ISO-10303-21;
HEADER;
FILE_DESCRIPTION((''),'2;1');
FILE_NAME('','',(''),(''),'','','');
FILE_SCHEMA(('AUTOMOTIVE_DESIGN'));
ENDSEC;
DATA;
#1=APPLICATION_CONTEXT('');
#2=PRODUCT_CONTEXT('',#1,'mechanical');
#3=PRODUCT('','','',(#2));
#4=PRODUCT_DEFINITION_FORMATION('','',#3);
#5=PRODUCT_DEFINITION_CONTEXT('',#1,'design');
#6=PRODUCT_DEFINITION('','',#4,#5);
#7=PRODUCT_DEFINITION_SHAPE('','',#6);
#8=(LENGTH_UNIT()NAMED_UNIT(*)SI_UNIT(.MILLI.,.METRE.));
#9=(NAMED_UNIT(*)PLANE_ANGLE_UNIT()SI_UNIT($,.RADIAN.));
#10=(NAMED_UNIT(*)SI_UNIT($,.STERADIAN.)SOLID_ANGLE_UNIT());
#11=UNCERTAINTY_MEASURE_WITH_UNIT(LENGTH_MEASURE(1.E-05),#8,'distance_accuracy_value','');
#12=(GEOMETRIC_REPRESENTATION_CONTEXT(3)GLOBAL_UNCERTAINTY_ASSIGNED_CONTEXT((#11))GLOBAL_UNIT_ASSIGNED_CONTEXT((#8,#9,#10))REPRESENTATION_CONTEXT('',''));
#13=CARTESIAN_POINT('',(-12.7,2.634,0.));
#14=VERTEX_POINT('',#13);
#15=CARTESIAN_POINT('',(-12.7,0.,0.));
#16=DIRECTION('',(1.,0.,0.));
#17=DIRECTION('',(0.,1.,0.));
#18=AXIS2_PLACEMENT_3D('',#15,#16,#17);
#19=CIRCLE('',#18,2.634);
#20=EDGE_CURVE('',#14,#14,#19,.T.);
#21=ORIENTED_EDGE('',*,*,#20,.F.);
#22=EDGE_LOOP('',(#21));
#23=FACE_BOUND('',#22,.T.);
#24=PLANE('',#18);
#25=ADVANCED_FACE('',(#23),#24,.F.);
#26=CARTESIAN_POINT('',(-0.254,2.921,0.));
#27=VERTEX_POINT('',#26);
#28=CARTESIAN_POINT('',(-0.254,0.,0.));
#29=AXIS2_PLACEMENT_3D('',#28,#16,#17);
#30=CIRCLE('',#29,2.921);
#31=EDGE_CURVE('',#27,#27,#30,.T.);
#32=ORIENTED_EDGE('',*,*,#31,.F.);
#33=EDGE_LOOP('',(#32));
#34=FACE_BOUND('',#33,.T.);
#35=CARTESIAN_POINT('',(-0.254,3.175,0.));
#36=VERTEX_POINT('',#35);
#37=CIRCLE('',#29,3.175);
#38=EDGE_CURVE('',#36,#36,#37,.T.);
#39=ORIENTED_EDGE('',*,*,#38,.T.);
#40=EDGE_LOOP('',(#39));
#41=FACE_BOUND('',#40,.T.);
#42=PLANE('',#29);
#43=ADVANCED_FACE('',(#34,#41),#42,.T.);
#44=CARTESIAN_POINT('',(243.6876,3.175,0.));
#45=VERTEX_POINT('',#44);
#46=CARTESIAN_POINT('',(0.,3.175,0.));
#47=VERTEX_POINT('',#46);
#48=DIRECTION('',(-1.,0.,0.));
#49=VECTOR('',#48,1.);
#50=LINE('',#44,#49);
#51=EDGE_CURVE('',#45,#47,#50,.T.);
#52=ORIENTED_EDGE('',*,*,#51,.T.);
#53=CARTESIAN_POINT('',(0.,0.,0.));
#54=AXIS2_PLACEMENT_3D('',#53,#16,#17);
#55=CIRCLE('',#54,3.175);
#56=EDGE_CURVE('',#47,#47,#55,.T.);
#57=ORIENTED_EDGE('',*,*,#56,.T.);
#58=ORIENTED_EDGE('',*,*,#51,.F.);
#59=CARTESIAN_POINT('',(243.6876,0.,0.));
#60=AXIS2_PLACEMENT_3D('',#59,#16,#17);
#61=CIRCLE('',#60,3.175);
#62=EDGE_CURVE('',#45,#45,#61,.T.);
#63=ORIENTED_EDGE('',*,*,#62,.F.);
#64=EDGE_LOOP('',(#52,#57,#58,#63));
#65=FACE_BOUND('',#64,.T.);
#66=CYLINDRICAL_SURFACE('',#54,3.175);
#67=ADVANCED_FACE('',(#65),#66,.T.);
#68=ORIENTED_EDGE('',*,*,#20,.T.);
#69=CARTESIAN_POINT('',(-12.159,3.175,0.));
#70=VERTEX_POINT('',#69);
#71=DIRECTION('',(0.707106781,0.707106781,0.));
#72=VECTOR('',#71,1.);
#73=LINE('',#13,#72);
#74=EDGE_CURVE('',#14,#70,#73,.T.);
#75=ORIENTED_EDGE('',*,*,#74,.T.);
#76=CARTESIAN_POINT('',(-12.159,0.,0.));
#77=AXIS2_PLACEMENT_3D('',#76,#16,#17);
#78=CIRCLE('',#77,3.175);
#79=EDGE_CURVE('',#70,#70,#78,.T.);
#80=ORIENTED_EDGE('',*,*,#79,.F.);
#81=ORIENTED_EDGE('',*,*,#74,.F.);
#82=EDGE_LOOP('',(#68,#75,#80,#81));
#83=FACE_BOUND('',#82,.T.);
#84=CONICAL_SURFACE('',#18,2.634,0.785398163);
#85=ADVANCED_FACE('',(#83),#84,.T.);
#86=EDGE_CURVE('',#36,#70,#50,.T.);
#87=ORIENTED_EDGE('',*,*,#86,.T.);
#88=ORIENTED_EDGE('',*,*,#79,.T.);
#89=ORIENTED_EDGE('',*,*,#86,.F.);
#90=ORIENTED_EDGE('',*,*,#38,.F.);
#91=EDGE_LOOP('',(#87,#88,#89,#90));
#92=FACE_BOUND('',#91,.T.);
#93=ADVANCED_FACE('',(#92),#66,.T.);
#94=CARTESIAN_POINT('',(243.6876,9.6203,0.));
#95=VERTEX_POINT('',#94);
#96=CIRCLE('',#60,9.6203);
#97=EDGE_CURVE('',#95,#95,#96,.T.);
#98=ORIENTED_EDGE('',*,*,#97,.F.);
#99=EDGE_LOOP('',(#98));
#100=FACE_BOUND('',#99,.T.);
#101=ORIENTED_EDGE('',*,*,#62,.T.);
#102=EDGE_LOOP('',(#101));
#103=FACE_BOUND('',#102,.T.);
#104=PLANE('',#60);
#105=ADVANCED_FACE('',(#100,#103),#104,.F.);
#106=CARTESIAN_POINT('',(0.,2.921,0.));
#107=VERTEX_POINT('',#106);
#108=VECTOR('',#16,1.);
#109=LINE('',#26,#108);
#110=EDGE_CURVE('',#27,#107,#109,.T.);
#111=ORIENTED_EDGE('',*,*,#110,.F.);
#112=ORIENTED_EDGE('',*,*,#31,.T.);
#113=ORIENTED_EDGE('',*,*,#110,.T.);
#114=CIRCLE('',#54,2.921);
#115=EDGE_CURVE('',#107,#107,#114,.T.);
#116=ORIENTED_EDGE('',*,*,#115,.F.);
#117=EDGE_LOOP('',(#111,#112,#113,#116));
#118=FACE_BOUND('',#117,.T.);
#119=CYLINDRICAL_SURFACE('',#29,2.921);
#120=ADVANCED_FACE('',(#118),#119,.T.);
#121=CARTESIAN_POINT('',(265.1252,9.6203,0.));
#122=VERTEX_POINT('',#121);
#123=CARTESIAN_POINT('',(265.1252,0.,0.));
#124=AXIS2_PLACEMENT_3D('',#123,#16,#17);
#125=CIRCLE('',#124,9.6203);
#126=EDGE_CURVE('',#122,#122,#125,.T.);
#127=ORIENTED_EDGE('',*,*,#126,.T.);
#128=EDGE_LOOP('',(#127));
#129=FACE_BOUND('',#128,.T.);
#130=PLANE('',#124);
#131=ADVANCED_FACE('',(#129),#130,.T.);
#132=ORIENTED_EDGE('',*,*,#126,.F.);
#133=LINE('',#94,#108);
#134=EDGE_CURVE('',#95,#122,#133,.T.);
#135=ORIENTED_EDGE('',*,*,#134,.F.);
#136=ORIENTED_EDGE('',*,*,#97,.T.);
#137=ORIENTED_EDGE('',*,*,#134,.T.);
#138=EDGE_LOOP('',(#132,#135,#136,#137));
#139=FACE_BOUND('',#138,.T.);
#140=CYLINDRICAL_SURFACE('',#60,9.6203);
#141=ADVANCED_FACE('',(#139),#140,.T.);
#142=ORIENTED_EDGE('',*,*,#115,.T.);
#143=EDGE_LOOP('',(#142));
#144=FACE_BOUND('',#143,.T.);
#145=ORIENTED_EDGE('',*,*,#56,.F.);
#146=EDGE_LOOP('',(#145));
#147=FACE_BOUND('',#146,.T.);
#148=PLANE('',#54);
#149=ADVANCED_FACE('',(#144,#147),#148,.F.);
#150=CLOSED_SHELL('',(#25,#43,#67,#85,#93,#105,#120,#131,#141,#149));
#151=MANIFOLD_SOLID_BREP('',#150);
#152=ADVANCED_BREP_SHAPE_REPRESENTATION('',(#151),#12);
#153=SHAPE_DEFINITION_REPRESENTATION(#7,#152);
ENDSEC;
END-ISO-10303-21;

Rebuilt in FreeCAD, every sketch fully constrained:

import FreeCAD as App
import Part
import Sketcher
from FreeCAD import Vector
Q = App.Units.Quantity

doc = App.newDocument("Part")
body = doc.addObject("PartDesign::Body", "Body")

sketch1 = doc.addObject("Sketcher::SketchObject", "Sketch")
body.addObject(sketch1)
sketch1.AttachmentSupport = (doc.XY_Plane, [""])
sketch1.MapMode = "FlatFace"
sketch1.addGeometry(Part.LineSegment(Vector(0, 0, 0), Vector(265.1, 0, 0)), False)
sketch1.addGeometry(Part.LineSegment(Vector(265.1, 0, 0), Vector(265.1, 9.6, 0)), False)
sketch1.addGeometry(Part.LineSegment(Vector(265.1, 9.6, 0), Vector(243.7, 9.6, 0)), False)
sketch1.addGeometry(Part.LineSegment(Vector(243.7, 9.6, 0), Vector(243.7, 3.2, 0)), False)
sketch1.addGeometry(Part.LineSegment(Vector(243.7, 3.2, 0), Vector(0, 3.2, 0)), False)
sketch1.addGeometry(Part.LineSegment(Vector(0, 3.2, 0), Vector(0, 0, 0)), False)
sketch1.addConstraint(Sketcher.Constraint("Coincident", 0, 2, 1, 1))
sketch1.addConstraint(Sketcher.Constraint("Coincident", 1, 2, 2, 1))
sketch1.addConstraint(Sketcher.Constraint("Coincident", 2, 2, 3, 1))
sketch1.addConstraint(Sketcher.Constraint("Coincident", 3, 2, 4, 1))
sketch1.addConstraint(Sketcher.Constraint("Coincident", 4, 2, 5, 1))
sketch1.addConstraint(Sketcher.Constraint("Coincident", 5, 2, 0, 1))
sketch1.addConstraint(Sketcher.Constraint("Horizontal", 0))
sketch1.addConstraint(Sketcher.Constraint("Vertical", 1))
sketch1.addConstraint(Sketcher.Constraint("Horizontal", 2))
sketch1.addConstraint(Sketcher.Constraint("Vertical", 3))
sketch1.addConstraint(Sketcher.Constraint("Horizontal", 4))
sketch1.addConstraint(Sketcher.Constraint("Vertical", 5))
sketch1.addConstraint(Sketcher.Constraint("Coincident", 5, 2, -1, 1))
sketch1.addConstraint(Sketcher.Constraint("DistanceX", 0, 1, 0, 2, Q("10.438 in")))
sketch1.addConstraint(Sketcher.Constraint("DistanceX", 2, 2, 2, 1, Q("0.844 in")))
sketch1.addConstraint(Sketcher.Constraint("DistanceY", 5, 2, 5, 1, Q("0.125 in")))
sketch1.addConstraint(Sketcher.Constraint("DistanceY", 1, 1, 1, 2, Q("9.6203 mm")))
revolution = doc.addObject("PartDesign::Revolution", "Revolution")
body.addObject(revolution)
revolution.Profile = sketch1
revolution.ReferenceAxis = (sketch1, ["H_Axis"])
revolution.Angle = 360

sketch2 = doc.addObject("Sketcher::SketchObject", "Sketch001")
body.addObject(sketch2)
sketch2.AttachmentSupport = (doc.XY_Plane, [""])
sketch2.MapMode = "FlatFace"
sketch2.addGeometry(Part.LineSegment(Vector(-12.7, 0, 0), Vector(0, 0, 0)), False)
sketch2.addGeometry(Part.LineSegment(Vector(0, 0, 0), Vector(0, 3.2, 0)), False)
sketch2.addGeometry(Part.LineSegment(Vector(0, 3.2, 0), Vector(-12.2, 3.2, 0)), False)
sketch2.addGeometry(Part.LineSegment(Vector(-12.2, 3.2, 0), Vector(-12.7, 2.6, 0)), False)
sketch2.addGeometry(Part.LineSegment(Vector(-12.7, 2.6, 0), Vector(-12.7, 0, 0)), False)
sketch2.addConstraint(Sketcher.Constraint("Coincident", 0, 2, 1, 1))
sketch2.addConstraint(Sketcher.Constraint("Coincident", 1, 2, 2, 1))
sketch2.addConstraint(Sketcher.Constraint("Coincident", 2, 2, 3, 1))
sketch2.addConstraint(Sketcher.Constraint("Coincident", 3, 2, 4, 1))
sketch2.addConstraint(Sketcher.Constraint("Coincident", 4, 2, 0, 1))
sketch2.addConstraint(Sketcher.Constraint("Horizontal", 0))
sketch2.addConstraint(Sketcher.Constraint("Vertical", 1))
sketch2.addConstraint(Sketcher.Constraint("Horizontal", 2))
sketch2.addConstraint(Sketcher.Constraint("Vertical", 4))
sketch2.addConstraint(Sketcher.Constraint("Coincident", 0, 2, -1, 1))
sketch2.addConstraint(Sketcher.Constraint("DistanceX", 0, 1, 0, 2, Q("0.5 in")))
sketch2.addConstraint(Sketcher.Constraint("Angle", 3, Q("-135 deg")))
sketch2.addConstraint(Sketcher.Constraint("DistanceY", 1, 1, 1, 2, Q("0.125 in")))
sketch2.addConstraint(Sketcher.Constraint("DistanceX", 2, 2, 2, 1, Q("0.4787 in")))
revolution2 = doc.addObject("PartDesign::Revolution", "Revolution001")
body.addObject(revolution2)
revolution2.Profile = sketch2
revolution2.ReferenceAxis = (sketch2, ["H_Axis"])
revolution2.Angle = 360

sketch3 = doc.addObject("Sketcher::SketchObject", "Sketch002")
body.addObject(sketch3)
sketch3.AttachmentSupport = (doc.XY_Plane, [""])
sketch3.MapMode = "FlatFace"
sketch3.addGeometry(Part.LineSegment(Vector(-0.25, 3.43, 0), Vector(-0.25, 2.92, 0)), False)
sketch3.addGeometry(Part.LineSegment(Vector(-0.25, 2.92, 0), Vector(0, 2.92, 0)), False)
sketch3.addGeometry(Part.LineSegment(Vector(0, 2.92, 0), Vector(0, 3.43, 0)), False)
sketch3.addGeometry(Part.LineSegment(Vector(0, 3.43, 0), Vector(-0.25, 3.43, 0)), False)
sketch3.addConstraint(Sketcher.Constraint("Coincident", 0, 2, 1, 1))
sketch3.addConstraint(Sketcher.Constraint("Coincident", 1, 2, 2, 1))
sketch3.addConstraint(Sketcher.Constraint("Coincident", 2, 2, 3, 1))
sketch3.addConstraint(Sketcher.Constraint("Coincident", 3, 2, 0, 1))
sketch3.addConstraint(Sketcher.Constraint("Vertical", 0))
sketch3.addConstraint(Sketcher.Constraint("Horizontal", 1))
sketch3.addConstraint(Sketcher.Constraint("Vertical", 2))
sketch3.addConstraint(Sketcher.Constraint("Horizontal", 3))
sketch3.addConstraint(Sketcher.Constraint("PointOnObject", 1, 2, -2))
sketch3.addConstraint(Sketcher.Constraint("DistanceX", 1, 1, 1, 2, Q("0.01 in")))
sketch3.addConstraint(Sketcher.Constraint("DistanceY", 0, 2, 0, 1, Q("0.02 in")))
sketch3.addConstraint(Sketcher.Constraint("DistanceY", -1, 1, 0, 2, Q("0.115 in")))
groove = doc.addObject("PartDesign::Groove", "Groove")
body.addObject(groove)
groove.Profile = sketch3
groove.ReferenceAxis = (sketch3, ["H_Axis"])
groove.Angle = 360

doc.recompute()
